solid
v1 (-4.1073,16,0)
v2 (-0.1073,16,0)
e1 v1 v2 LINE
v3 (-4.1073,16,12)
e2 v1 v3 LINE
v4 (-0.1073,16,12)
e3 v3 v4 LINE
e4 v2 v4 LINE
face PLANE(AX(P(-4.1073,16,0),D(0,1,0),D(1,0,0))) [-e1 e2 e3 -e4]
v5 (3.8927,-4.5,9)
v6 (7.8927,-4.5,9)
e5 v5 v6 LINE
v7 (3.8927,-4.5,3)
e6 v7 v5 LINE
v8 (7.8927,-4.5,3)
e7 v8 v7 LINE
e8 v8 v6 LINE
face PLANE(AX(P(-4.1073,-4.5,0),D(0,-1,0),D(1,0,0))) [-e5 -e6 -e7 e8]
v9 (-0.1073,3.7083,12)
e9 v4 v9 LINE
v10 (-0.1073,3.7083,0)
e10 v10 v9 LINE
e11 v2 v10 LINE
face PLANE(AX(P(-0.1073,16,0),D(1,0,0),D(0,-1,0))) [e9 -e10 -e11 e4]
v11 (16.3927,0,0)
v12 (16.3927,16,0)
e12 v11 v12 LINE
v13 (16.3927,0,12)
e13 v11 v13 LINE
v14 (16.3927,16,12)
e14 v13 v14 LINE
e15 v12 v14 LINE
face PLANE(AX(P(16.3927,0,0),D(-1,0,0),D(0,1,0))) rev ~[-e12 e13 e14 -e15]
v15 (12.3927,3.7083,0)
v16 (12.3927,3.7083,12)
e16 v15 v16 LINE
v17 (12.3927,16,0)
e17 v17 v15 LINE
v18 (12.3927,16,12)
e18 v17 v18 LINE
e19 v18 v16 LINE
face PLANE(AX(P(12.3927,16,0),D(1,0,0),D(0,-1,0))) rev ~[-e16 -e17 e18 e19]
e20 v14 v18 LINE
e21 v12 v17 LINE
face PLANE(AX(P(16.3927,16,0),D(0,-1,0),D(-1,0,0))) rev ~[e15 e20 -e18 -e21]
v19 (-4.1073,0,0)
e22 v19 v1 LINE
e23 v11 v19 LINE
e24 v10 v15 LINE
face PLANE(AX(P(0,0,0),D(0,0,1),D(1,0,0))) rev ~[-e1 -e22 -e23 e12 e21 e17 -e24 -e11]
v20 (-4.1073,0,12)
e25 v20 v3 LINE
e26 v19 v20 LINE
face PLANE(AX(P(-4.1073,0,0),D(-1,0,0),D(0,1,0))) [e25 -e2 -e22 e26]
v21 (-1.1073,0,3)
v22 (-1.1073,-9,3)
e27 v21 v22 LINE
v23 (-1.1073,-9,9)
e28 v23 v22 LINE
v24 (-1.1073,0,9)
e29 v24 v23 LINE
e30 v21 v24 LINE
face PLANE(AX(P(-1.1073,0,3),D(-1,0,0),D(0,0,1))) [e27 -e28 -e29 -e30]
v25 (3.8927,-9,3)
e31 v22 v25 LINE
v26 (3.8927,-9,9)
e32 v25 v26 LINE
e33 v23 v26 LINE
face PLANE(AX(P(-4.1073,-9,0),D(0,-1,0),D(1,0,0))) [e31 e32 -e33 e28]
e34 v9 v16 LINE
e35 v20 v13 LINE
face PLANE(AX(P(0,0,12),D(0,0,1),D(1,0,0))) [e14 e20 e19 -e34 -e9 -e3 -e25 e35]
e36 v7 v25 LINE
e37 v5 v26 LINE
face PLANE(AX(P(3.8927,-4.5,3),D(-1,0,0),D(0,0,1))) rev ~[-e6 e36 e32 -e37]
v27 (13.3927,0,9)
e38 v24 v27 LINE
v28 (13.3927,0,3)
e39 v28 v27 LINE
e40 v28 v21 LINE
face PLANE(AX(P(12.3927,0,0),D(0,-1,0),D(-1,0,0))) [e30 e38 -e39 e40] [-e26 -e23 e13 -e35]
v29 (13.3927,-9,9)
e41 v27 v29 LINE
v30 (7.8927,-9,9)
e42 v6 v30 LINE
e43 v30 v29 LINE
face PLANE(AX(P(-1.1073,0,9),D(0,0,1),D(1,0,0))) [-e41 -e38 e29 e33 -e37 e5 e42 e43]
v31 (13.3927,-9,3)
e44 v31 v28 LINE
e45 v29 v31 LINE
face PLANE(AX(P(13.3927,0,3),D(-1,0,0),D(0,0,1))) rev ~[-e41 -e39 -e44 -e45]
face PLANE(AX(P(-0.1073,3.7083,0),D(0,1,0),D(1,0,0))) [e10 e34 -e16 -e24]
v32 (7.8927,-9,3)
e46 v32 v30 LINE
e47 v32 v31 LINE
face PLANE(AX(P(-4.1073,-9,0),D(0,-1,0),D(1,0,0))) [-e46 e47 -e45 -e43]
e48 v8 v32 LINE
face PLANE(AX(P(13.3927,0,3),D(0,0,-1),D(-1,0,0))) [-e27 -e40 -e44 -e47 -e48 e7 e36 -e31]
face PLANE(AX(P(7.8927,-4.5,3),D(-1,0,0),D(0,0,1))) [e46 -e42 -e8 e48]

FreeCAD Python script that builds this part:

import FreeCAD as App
import Part
import Sketcher
from FreeCAD import Vector
Q = App.Units.Quantity

doc = App.newDocument("Part")
params = doc.addObject("Spreadsheet::Sheet", "Params")
for row, (alias, value) in enumerate([
    ("sketch1_width", "4 mm"),
    ("sketch1_height", "16 mm"),
    ("sketch1_width2", "12.5 mm"),
    ("pad1_length", "12 mm"),
    ("sketch2_height", "6 mm"),
    ("sketch2_width", "14.5 mm"),
    ("pad2_length", "4.5 mm"),
    ("sketch3_width", "5.5 mm"),
    ("sketch3_width2", "5 mm"),
    ("sketch3_height", "6 mm"),
    ("pad3_length", "4.5 mm"),
], start=1):
    params.set(f"A{row}", alias)
    params.set(f"B{row}", "=" + value)
    params.setAlias(f"B{row}", alias)

body = doc.addObject("PartDesign::Body", "Body")

sketch1 = body.newObject("Sketcher::SketchObject", "Sketch")
sketch1.AttachmentSupport = (doc.getObject("XY_Plane"), [""])
sketch1.MapMode = "FlatFace"
sketch1.addGeometry([
    Part.LineSegment(Vector(12.3927, 3.7083, 0), Vector(-0.1073, 3.7083, 0)),
    Part.LineSegment(Vector(-0.1073, 3.7083, 0), Vector(-0.1073, 16, 0)),
    Part.LineSegment(Vector(-0.1073, 16, 0), Vector(-4.1073, 16, 0)),
    Part.LineSegment(Vector(-4.1073, 16, 0), Vector(-4.1073, 0, 0)),
    Part.LineSegment(Vector(-4.1073, 0, 0), Vector(16.3927, 0, 0)),
    Part.LineSegment(Vector(16.3927, 0, 0), Vector(16.3927, 16, 0)),
    Part.LineSegment(Vector(16.3927, 16, 0), Vector(12.3927, 16, 0)),
    Part.LineSegment(Vector(12.3927, 16, 0), Vector(12.3927, 3.7083, 0)),
], False)
sketch1.addConstraint([
    Sketcher.Constraint("Coincident", 0, 2, 1, 1),
    Sketcher.Constraint("Coincident", 1, 2, 2, 1),
    Sketcher.Constraint("Coincident", 2, 2, 3, 1),
    Sketcher.Constraint("Coincident", 3, 2, 4, 1),
    Sketcher.Constraint("Coincident", 4, 2, 5, 1),
    Sketcher.Constraint("Coincident", 5, 2, 6, 1),
    Sketcher.Constraint("Coincident", 6, 2, 7, 1),
    Sketcher.Constraint("Coincident", 7, 2, 0, 1),
    Sketcher.Constraint("Horizontal", 0),
    Sketcher.Constraint("Vertical", 1),
    Sketcher.Constraint("Horizontal", 2),
    Sketcher.Constraint("Vertical", 3),
    Sketcher.Constraint("Horizontal", 4),
    Sketcher.Constraint("Vertical", 5),
    Sketcher.Constraint("Horizontal", 6),
    Sketcher.Constraint("Vertical", 7),
    Sketcher.Constraint("PointOnObject", 3, 2, -1),
    Sketcher.Constraint("Horizontal", 2, 2, 5, 2),
    Sketcher.Constraint("Equal", 2, 6),
    Sketcher.Constraint("DistanceX", 2, 2, 2, 1, Q("4 mm")),
    Sketcher.Constraint("DistanceY", 3, 2, 3, 1, Q("16 mm")),
    Sketcher.Constraint("DistanceX", 0, 2, 0, 1, Q("12.5 mm")),
    Sketcher.Constraint("DistanceY", 1, 1, 1, 2, Q("12.2917 mm")),
    Sketcher.Constraint("DistanceX", 0, 2, -1, 1, Q("0.1073 mm")),
])
sketch1.setExpression("Constraints[19]", "Params.sketch1_width")
sketch1.setExpression("Constraints[20]", "Params.sketch1_height")
sketch1.setExpression("Constraints[21]", "Params.sketch1_width2")
pad1 = body.newObject("PartDesign::Pad", "Pad")
pad1.Profile = sketch1
pad1.setExpression("Length", "Params.pad1_length")

sketch2 = body.newObject("Sketcher::SketchObject", "Sketch001")
sketch2.AttachmentSupport = (doc.getObject("XZ_Plane"), [""])
sketch2.MapMode = "FlatFace"
sketch2.addGeometry([
    Part.LineSegment(Vector(-1.1073, 3, 0), Vector(13.3927, 3, 0)),
    Part.LineSegment(Vector(13.3927, 3, 0), Vector(13.3927, 9, 0)),
    Part.LineSegment(Vector(13.3927, 9, 0), Vector(-1.1073, 9, 0)),
    Part.LineSegment(Vector(-1.1073, 9, 0), Vector(-1.1073, 3, 0)),
], False)
sketch2.addConstraint([
    Sketcher.Constraint("Coincident", 0, 2, 1, 1),
    Sketcher.Constraint("Coincident", 1, 2, 2, 1),
    Sketcher.Constraint("Coincident", 2, 2, 3, 1),
    Sketcher.Constraint("Coincident", 3, 2, 0, 1),
    Sketcher.Constraint("Horizontal", 0),
    Sketcher.Constraint("Vertical", 1),
    Sketcher.Constraint("Horizontal", 2),
    Sketcher.Constraint("Vertical", 3),
    Sketcher.Constraint("DistanceY", -1, 1, 0, 2, Q("3 mm")),
    Sketcher.Constraint("DistanceY", 1, 1, 1, 2, Q("6 mm")),
    Sketcher.Constraint("DistanceX", 0, 1, 0, 2, Q("14.5 mm")),
    Sketcher.Constraint("DistanceX", -1, 1, 0, 2, Q("13.3927 mm")),
])
sketch2.setExpression("Constraints[9]", "Params.sketch2_height")
sketch2.setExpression("Constraints[10]", "Params.sketch2_width")
pad2 = body.newObject("PartDesign::Pad", "Pad001")
pad2.Profile = sketch2
pad2.setExpression("Length", "Params.pad2_length")

sketch3 = body.newObject("Sketcher::SketchObject", "Sketch002")
sketch3.AttachmentSupport = (doc.getObject("XZ_Plane"), [""])
sketch3.MapMode = "FlatFace"
sketch3.AttachmentOffset = App.Placement(Vector(0, 0, 4.5), App.Rotation())
sketch3.addGeometry([
    Part.LineSegment(Vector(-1.1073, 9, 0), Vector(-1.1073, 3, 0)),
    Part.LineSegment(Vector(-1.1073, 3, 0), Vector(3.8927, 3, 0)),
    Part.LineSegment(Vector(3.8927, 3, 0), Vector(3.8927, 9, 0)),
    Part.LineSegment(Vector(3.8927, 9, 0), Vector(-1.1073, 9, 0)),
    Part.LineSegment(Vector(7.8927, 9, 0), Vector(7.8927, 3, 0)),
    Part.LineSegment(Vector(7.8927, 3, 0), Vector(13.3927, 3, 0)),
    Part.LineSegment(Vector(13.3927, 3, 0), Vector(13.3927, 9, 0)),
    Part.LineSegment(Vector(13.3927, 9, 0), Vector(7.8927, 9, 0)),
], False)
sketch3.addConstraint([
    Sketcher.Constraint("Coincident", 0, 2, 1, 1),
    Sketcher.Constraint("Coincident", 1, 2, 2, 1),
    Sketcher.Constraint("Coincident", 2, 2, 3, 1),
    Sketcher.Constraint("Coincident", 3, 2, 0, 1),
    Sketcher.Constraint("Coincident", 4, 2, 5, 1),
    Sketcher.Constraint("Coincident", 5, 2, 6, 1),
    Sketcher.Constraint("Coincident", 6, 2, 7, 1),
    Sketcher.Constraint("Coincident", 7, 2, 4, 1),
    Sketcher.Constraint("Vertical", 0),
    Sketcher.Constraint("Horizontal", 1),
    Sketcher.Constraint("Vertical", 2),
    Sketcher.Constraint("Horizontal", 3),
    Sketcher.Constraint("Vertical", 4),
    Sketcher.Constraint("Horizontal", 5),
    Sketcher.Constraint("Vertical", 6),
    Sketcher.Constraint("Horizontal", 7),
    Sketcher.Constraint("Horizontal", 1, 2, 4, 2),
    Sketcher.Constraint("Horizontal", 3, 2, 6, 2),
    Sketcher.Constraint("DistanceX", 5, 1, 5, 2, Q("5.5 mm")),
    Sketcher.Constraint("DistanceX", 1, 2, 4, 2, Q("4 mm")),
    Sketcher.Constraint("DistanceX", 1, 1, 1, 2, Q("5 mm")),
    Sketcher.Constraint("DistanceY", 0, 2, 0, 1, Q("6 mm")),
    Sketcher.Constraint("DistanceY", -1, 1, 0, 2, Q("3 mm")),
    Sketcher.Constraint("DistanceX", 0, 2, -1, 1, Q("1.1073 mm")),
])
sketch3.setExpression("Constraints[18]", "Params.sketch3_width")
sketch3.setExpression("Constraints[20]", "Params.sketch3_width2")
sketch3.setExpression("Constraints[21]", "Params.sketch3_height")
pad3 = body.newObject("PartDesign::Pad", "Pad002")
pad3.Profile = sketch3
pad3.setExpression("Length", "Params.pad3_length")

doc.recompute()
